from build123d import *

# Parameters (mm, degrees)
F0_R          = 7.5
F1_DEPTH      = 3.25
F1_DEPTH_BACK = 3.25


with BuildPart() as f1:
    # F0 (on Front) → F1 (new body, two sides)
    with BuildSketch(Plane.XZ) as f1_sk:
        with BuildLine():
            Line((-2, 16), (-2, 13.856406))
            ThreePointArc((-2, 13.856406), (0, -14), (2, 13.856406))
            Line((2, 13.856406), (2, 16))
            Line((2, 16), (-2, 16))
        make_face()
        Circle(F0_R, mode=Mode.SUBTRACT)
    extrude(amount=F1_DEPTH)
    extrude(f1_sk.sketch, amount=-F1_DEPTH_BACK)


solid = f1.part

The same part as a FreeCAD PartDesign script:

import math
import FreeCAD as App
import Part
import Sketcher
from FreeCAD import Vector

doc = App.newDocument("Part")
body = doc.addObject("PartDesign::Body", "Body")

sketch1 = body.newObject("Sketcher::SketchObject", "Sketch")
sketch1.AttachmentSupport = (doc.getObject("XZ_Plane"), [""])
sketch1.MapMode = "FlatFace"
sketch1.addGeometry([
    Part.LineSegment(Vector(-2, 16, 0), Vector(-2, 13.9, 0)),
    Part.ArcOfCircle(Part.Circle(Vector(0, 0, 0), Vector(0, 0, 1), 14), math.radians(98), math.radians(442)),
    Part.LineSegment(Vector(2, 13.9, 0), Vector(2, 16, 0)),
    Part.LineSegment(Vector(2, 16, 0), Vector(-2, 16, 0)),
    Part.Circle(Vector(0, 0, 0), Vector(0, 0, 1), 7.5),
], False)
sketch1.addConstraint([
    Sketcher.Constraint("Coincident", 0, 2, 1, 1),
    Sketcher.Constraint("Coincident", 1, 2, 2, 1),
    Sketcher.Constraint("Coincident", 2, 2, 3, 1),
    Sketcher.Constraint("Coincident", 3, 2, 0, 1),
    Sketcher.Constraint("Vertical", 0),
    Sketcher.Constraint("Vertical", 2),
    Sketcher.Constraint("Horizontal", 3),
    Sketcher.Constraint("Coincident", 1, 3, -1, 1),
    Sketcher.Constraint("Coincident", 4, 3, -1, 1),
    Sketcher.Constraint("Horizontal", 0, 2, 1, 2),
    Sketcher.Constraint("Diameter", 4, 15.0),
    Sketcher.Constraint("Radius", 1, 14.0),
    Sketcher.Constraint("DistanceX", 3, 2, 3, 1, 4.0),
    Sketcher.Constraint("DistanceY", -1, 1, 2, 2, 16.0),
])
pad1 = body.newObject("PartDesign::Pad", "Pad")
pad1.Profile = sketch1
pad1.Type = "TwoLengths"
pad1.Length = 3.25
pad1.Length2 = 3.25

doc.recompute()
